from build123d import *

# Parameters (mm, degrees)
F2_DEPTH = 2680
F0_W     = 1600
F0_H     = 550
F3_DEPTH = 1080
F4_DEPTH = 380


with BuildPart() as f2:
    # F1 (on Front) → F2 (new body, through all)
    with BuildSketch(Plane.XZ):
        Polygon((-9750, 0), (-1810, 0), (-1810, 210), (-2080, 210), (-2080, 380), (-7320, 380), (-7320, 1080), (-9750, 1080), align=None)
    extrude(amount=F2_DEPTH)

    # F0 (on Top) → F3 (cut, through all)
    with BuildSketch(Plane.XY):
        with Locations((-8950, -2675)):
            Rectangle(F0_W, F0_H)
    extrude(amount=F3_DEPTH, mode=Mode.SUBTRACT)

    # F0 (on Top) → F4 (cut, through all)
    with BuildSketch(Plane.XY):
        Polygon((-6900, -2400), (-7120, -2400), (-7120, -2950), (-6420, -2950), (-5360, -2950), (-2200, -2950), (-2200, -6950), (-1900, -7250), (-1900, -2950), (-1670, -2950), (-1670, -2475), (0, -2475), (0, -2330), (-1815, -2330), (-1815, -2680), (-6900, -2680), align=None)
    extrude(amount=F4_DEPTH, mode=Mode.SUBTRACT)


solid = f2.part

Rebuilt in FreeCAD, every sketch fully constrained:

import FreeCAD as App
import Part
import Sketcher

V = App.Vector

doc = App.newDocument("Part")
body = doc.addObject("PartDesign::Body", "Body")

# Sketch on XZ plane
sketch1 = body.newObject("Sketcher::SketchObject", "Sketch")
sketch1.AttachmentSupport = (doc.getObject("XZ_Plane"), [""])
sketch1.MapMode = "FlatFace"
sketch1.addGeometry(Part.LineSegment(V(-9750, 0, 0), V(-1810, 0, 0)), False)
sketch1.addGeometry(Part.LineSegment(V(-1810, 0, 0), V(-1810, 210, 0)), False)
sketch1.addGeometry(Part.LineSegment(V(-1810, 210, 0), V(-2080, 210, 0)), False)
sketch1.addGeometry(Part.LineSegment(V(-2080, 210, 0), V(-2080, 380, 0)), False)
sketch1.addGeometry(Part.LineSegment(V(-2080, 380, 0), V(-7320, 380, 0)), False)
sketch1.addGeometry(Part.LineSegment(V(-7320, 380, 0), V(-7320, 1080, 0)), False)
sketch1.addGeometry(Part.LineSegment(V(-7320, 1080, 0), V(-9750, 1080, 0)), False)
sketch1.addGeometry(Part.LineSegment(V(-9750, 1080, 0), V(-9750, 0, 0)), False)
sketch1.addConstraint(Sketcher.Constraint("Coincident", 0, 2, 1, 1))
sketch1.addConstraint(Sketcher.Constraint("Coincident", 1, 2, 2, 1))
sketch1.addConstraint(Sketcher.Constraint("Coincident", 2, 2, 3, 1))
sketch1.addConstraint(Sketcher.Constraint("Coincident", 3, 2, 4, 1))
sketch1.addConstraint(Sketcher.Constraint("Coincident", 4, 2, 5, 1))
sketch1.addConstraint(Sketcher.Constraint("Coincident", 5, 2, 6, 1))
sketch1.addConstraint(Sketcher.Constraint("Coincident", 6, 2, 7, 1))
sketch1.addConstraint(Sketcher.Constraint("Coincident", 7, 2, 0, 1))
sketch1.addConstraint(Sketcher.Constraint("Horizontal", 0))
sketch1.addConstraint(Sketcher.Constraint("Vertical", 1))
sketch1.addConstraint(Sketcher.Constraint("Horizontal", 2))
sketch1.addConstraint(Sketcher.Constraint("Vertical", 3))
sketch1.addConstraint(Sketcher.Constraint("Horizontal", 4))
sketch1.addConstraint(Sketcher.Constraint("Vertical", 5))
sketch1.addConstraint(Sketcher.Constraint("Horizontal", 6))
sketch1.addConstraint(Sketcher.Constraint("Vertical", 7))
sketch1.addConstraint(Sketcher.Constraint("PointOnObject", 0, 2, -1))
sketch1.addConstraint(Sketcher.Constraint("DistanceX", 0, 1, 0, 2, 7940.0))
sketch1.addConstraint(Sketcher.Constraint("DistanceX", 2, 2, 2, 1, 270.0))
sketch1.addConstraint(Sketcher.Constraint("DistanceX", 4, 2, 4, 1, 5240.0))
sketch1.addConstraint(Sketcher.Constraint("DistanceY", 1, 1, 1, 2, 210.0))
sketch1.addConstraint(Sketcher.Constraint("DistanceY", 3, 1, 3, 2, 170.0))
sketch1.addConstraint(Sketcher.Constraint("DistanceY", 5, 1, 5, 2, 700.0))
sketch1.addConstraint(Sketcher.Constraint("DistanceX", 0, 2, -1, 1, 1810.0))
pad1 = body.newObject("PartDesign::Pad", "Pad")
pad1.Profile = sketch1
pad1.Length = 2680

# Sketch on XY plane
sketch2 = body.newObject("Sketcher::SketchObject", "Sketch001")
sketch2.AttachmentSupport = (doc.getObject("XY_Plane"), [""])
sketch2.MapMode = "FlatFace"
sketch2.addGeometry(Part.LineSegment(V(-9750, -2400, 0), V(-9750, -2950, 0)), False)
sketch2.addGeometry(Part.LineSegment(V(-9750, -2950, 0), V(-8150, -2950, 0)), False)
sketch2.addGeometry(Part.LineSegment(V(-8150, -2950, 0), V(-8150, -2400, 0)), False)
sketch2.addGeometry(Part.LineSegment(V(-8150, -2400, 0), V(-9750, -2400, 0)), False)
sketch2.addConstraint(Sketcher.Constraint("Coincident", 0, 2, 1, 1))
sketch2.addConstraint(Sketcher.Constraint("Coincident", 1, 2, 2, 1))
sketch2.addConstraint(Sketcher.Constraint("Coincident", 2, 2, 3, 1))
sketch2.addConstraint(Sketcher.Constraint("Coincident", 3, 2, 0, 1))
sketch2.addConstraint(Sketcher.Constraint("Vertical", 0))
sketch2.addConstraint(Sketcher.Constraint("Horizontal", 1))
sketch2.addConstraint(Sketcher.Constraint("Vertical", 2))
sketch2.addConstraint(Sketcher.Constraint("Horizontal", 3))
sketch2.addConstraint(Sketcher.Constraint("DistanceX", 1, 1, 1, 2, 1600.0))
sketch2.addConstraint(Sketcher.Constraint("DistanceY", 0, 2, 0, 1, 550.0))
sketch2.addConstraint(Sketcher.Constraint("DistanceX", 0, 2, -1, 1, 9750.0))
sketch2.addConstraint(Sketcher.Constraint("DistanceY", 0, 2, -1, 1, 2950.0))
pocket1 = body.newObject("PartDesign::Pocket", "Pocket")
pocket1.Profile = sketch2
pocket1.Type = "ThroughAll"
pocket1.Reversed = True

# Sketch on XY plane
sketch3 = body.newObject("Sketcher::SketchObject", "Sketch002")
sketch3.AttachmentSupport = (doc.getObject("XY_Plane"), [""])
sketch3.MapMode = "FlatFace"
sketch3.addGeometry(Part.LineSegment(V(-6900, -2400, 0), V(-7120, -2400, 0)), False)
sketch3.addGeometry(Part.LineSegment(V(-7120, -2400, 0), V(-7120, -2950, 0)), False)
sketch3.addGeometry(Part.LineSegment(V(-7120, -2950, 0), V(-2200, -2950, 0)), False)
sketch3.addGeometry(Part.LineSegment(V(-2200, -2950, 0), V(-2200, -6950, 0)), False)
sketch3.addGeometry(Part.LineSegment(V(-2200, -6950, 0), V(-1900, -7250, 0)), False)
sketch3.addGeometry(Part.LineSegment(V(-1900, -7250, 0), V(-1900, -2950, 0)), False)
sketch3.addGeometry(Part.LineSegment(V(-1900, -2950, 0), V(-1670, -2950, 0)), False)
sketch3.addGeometry(Part.LineSegment(V(-1670, -2950, 0), V(-1670, -2475, 0)), False)
sketch3.addGeometry(Part.LineSegment(V(-1670, -2475, 0), V(0, -2475, 0)), False)
sketch3.addGeometry(Part.LineSegment(V(0, -2475, 0), V(0, -2330, 0)), False)
sketch3.addGeometry(Part.LineSegment(V(0, -2330, 0), V(-1815, -2330, 0)), False)
sketch3.addGeometry(Part.LineSegment(V(-1815, -2330, 0), V(-1815, -2680, 0)), False)
sketch3.addGeometry(Part.LineSegment(V(-1815, -2680, 0), V(-6900, -2680, 0)), False)
sketch3.addGeometry(Part.LineSegment(V(-6900, -2680, 0), V(-6900, -2400, 0)), False)
sketch3.addConstraint(Sketcher.Constraint("Coincident", 0, 2, 1, 1))
sketch3.addConstraint(Sketcher.Constraint("Coincident", 1, 2, 2, 1))
sketch3.addConstraint(Sketcher.Constraint("Coincident", 2, 2, 3, 1))
sketch3.addConstraint(Sketcher.Constraint("Coincident", 3, 2, 4, 1))
sketch3.addConstraint(Sketcher.Constraint("Coincident", 4, 2, 5, 1))
sketch3.addConstraint(Sketcher.Constraint("Coincident", 5, 2, 6, 1))
sketch3.addConstraint(Sketcher.Constraint("Coincident", 6, 2, 7, 1))
sketch3.addConstraint(Sketcher.Constraint("Coincident", 7, 2, 8, 1))
sketch3.addConstraint(Sketcher.Constraint("Coincident", 8, 2, 9, 1))
sketch3.addConstraint(Sketcher.Constraint("Coincident", 9, 2, 10, 1))
sketch3.addConstraint(Sketcher.Constraint("Coincident", 10, 2, 11, 1))
sketch3.addConstraint(Sketcher.Constraint("Coincident", 11, 2, 12, 1))
sketch3.addConstraint(Sketcher.Constraint("Coincident", 12, 2, 13, 1))
sketch3.addConstraint(Sketcher.Constraint("Coincident", 13, 2, 0, 1))
sketch3.addConstraint(Sketcher.Constraint("Horizontal", 0))
sketch3.addConstraint(Sketcher.Constraint("Vertical", 1))
sketch3.addConstraint(Sketcher.Constraint("Horizontal", 2))
sketch3.addConstraint(Sketcher.Constraint("Vertical", 3))
sketch3.addConstraint(Sketcher.Constraint("Vertical", 5))
sketch3.addConstraint(Sketcher.Constraint("Horizontal", 6))
sketch3.addConstraint(Sketcher.Constraint("Vertical", 7))
sketch3.addConstraint(Sketcher.Constraint("Horizontal", 8))
sketch3.addConstraint(Sketcher.Constraint("Vertical", 9))
sketch3.addConstraint(Sketcher.Constraint("Horizontal", 10))
sketch3.addConstraint(Sketcher.Constraint("Vertical", 11))
sketch3.addConstraint(Sketcher.Constraint("Horizontal", 12))
sketch3.addConstraint(Sketcher.Constraint("Vertical", 13))
sketch3.addConstraint(Sketcher.Constraint("PointOnObject", 8, 2, -2))
sketch3.addConstraint(Sketcher.Constraint("Horizontal", 2, 2, 5, 2))
sketch3.addConstraint(Sketcher.Constraint("DistanceX", 0, 2, 0, 1, 220.0))
sketch3.addConstraint(Sketcher.Constraint("DistanceX", 2, 1, 2, 2, 4920.0))
sketch3.addConstraint(Sketcher.Constraint("DistanceX", 6, 1, 6, 2, 230.0))
sketch3.addConstraint(Sketcher.Constraint("DistanceX", 8, 1, 8, 2, 1670.0))
sketch3.addConstraint(Sketcher.Constraint("DistanceX", 10, 2, 10, 1, 1815.0))
sketch3.addConstraint(Sketcher.Constraint("DistanceX", 12, 2, 12, 1, 5085.0))
sketch3.addConstraint(Sketcher.Constraint("DistanceY", 1, 2, 1, 1, 550.0))
sketch3.addConstraint(Sketcher.Constraint("DistanceY", 3, 2, 3, 1, 4000.0))
sketch3.addConstraint(Sketcher.Constraint("DistanceY", 5, 1, 5, 2, 4300.0))
sketch3.addConstraint(Sketcher.Constraint("DistanceY", 7, 1, 7, 2, 475.0))
sketch3.addConstraint(Sketcher.Constraint("DistanceY", 9, 1, 9, 2, 145.0))
sketch3.addConstraint(Sketcher.Constraint("DistanceY", 11, 2, 11, 1, 350.0))
sketch3.addConstraint(Sketcher.Constraint("DistanceY", 0, 2, -1, 1, 2400.0))
pocket2 = body.newObject("PartDesign::Pocket", "Pocket001")
pocket2.Profile = sketch3
pocket2.Type = "ThroughAll"
pocket2.Reversed = True

doc.recompute()
